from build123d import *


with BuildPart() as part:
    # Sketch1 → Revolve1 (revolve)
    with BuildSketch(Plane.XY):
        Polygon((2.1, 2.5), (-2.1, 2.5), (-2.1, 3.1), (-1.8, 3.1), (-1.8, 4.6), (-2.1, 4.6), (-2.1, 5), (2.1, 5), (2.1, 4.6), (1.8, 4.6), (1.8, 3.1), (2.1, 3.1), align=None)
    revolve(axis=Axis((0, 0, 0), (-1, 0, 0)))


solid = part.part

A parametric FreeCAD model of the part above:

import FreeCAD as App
import Part
import Sketcher
Q = App.Units.Quantity

doc = App.newDocument("Part")
body = doc.addObject("PartDesign::Body", "Body")

# Sketch on XY plane
sketch1 = body.newObject("Sketcher::SketchObject", "Sketch")
sketch1.AttachmentSupport = (doc.getObject("XY_Plane"), [""])
sketch1.MapMode = "FlatFace"
sketch1.addGeometry([
    Part.LineSegment(App.Vector(-2.1, 2.5, 0), App.Vector(2.1, 2.5, 0)),  # 0
    Part.LineSegment(App.Vector(2.1, 2.5, 0), App.Vector(2.1, 3.1, 0)),  # 1
    Part.LineSegment(App.Vector(2.1, 3.1, 0), App.Vector(1.8, 3.1, 0)),  # 2
    Part.LineSegment(App.Vector(1.8, 3.1, 0), App.Vector(1.8, 4.6, 0)),  # 3
    Part.LineSegment(App.Vector(1.8, 4.6, 0), App.Vector(2.1, 4.6, 0)),  # 4
    Part.LineSegment(App.Vector(2.1, 4.6, 0), App.Vector(2.1, 5, 0)),  # 5
    Part.LineSegment(App.Vector(2.1, 5, 0), App.Vector(-2.1, 5, 0)),  # 6
    Part.LineSegment(App.Vector(-2.1, 5, 0), App.Vector(-2.1, 4.6, 0)),  # 7
    Part.LineSegment(App.Vector(-2.1, 4.6, 0), App.Vector(-1.8, 4.6, 0)),  # 8
    Part.LineSegment(App.Vector(-1.8, 4.6, 0), App.Vector(-1.8, 3.1, 0)),  # 9
    Part.LineSegment(App.Vector(-1.8, 3.1, 0), App.Vector(-2.1, 3.1, 0)),  # 10
    Part.LineSegment(App.Vector(-2.1, 3.1, 0), App.Vector(-2.1, 2.5, 0)),  # 11
], False)
sketch1.addConstraint([
    Sketcher.Constraint("Coincident", 0, 2, 1, 1),
    Sketcher.Constraint("Coincident", 1, 2, 2, 1),
    Sketcher.Constraint("Coincident", 2, 2, 3, 1),
    Sketcher.Constraint("Coincident", 3, 2, 4, 1),
    Sketcher.Constraint("Coincident", 4, 2, 5, 1),
    Sketcher.Constraint("Coincident", 5, 2, 6, 1),
    Sketcher.Constraint("Coincident", 6, 2, 7, 1),
    Sketcher.Constraint("Coincident", 7, 2, 8, 1),
    Sketcher.Constraint("Coincident", 8, 2, 9, 1),
    Sketcher.Constraint("Coincident", 9, 2, 10, 1),
    Sketcher.Constraint("Coincident", 10, 2, 11, 1),
    Sketcher.Constraint("Coincident", 11, 2, 0, 1),
    Sketcher.Constraint("Horizontal", 0),
    Sketcher.Constraint("Vertical", 1),
    Sketcher.Constraint("Horizontal", 2),
    Sketcher.Constraint("Vertical", 3),
    Sketcher.Constraint("Horizontal", 4),
    Sketcher.Constraint("Vertical", 5),
    Sketcher.Constraint("Horizontal", 6),
    Sketcher.Constraint("Vertical", 7),
    Sketcher.Constraint("Horizontal", 8),
    Sketcher.Constraint("Vertical", 9),
    Sketcher.Constraint("Horizontal", 10),
    Sketcher.Constraint("Vertical", 11),
    Sketcher.Constraint("Symmetric", 4, 2, 7, 2, -2),
    Sketcher.Constraint("Symmetric", 2, 2, 9, 2, -2),
    Sketcher.Constraint("Vertical", 1, 2, 4, 2),
    Sketcher.Constraint("Vertical", 7, 2, 10, 2),
    Sketcher.Constraint("DistanceX", 0, 1, 0, 2, Q("4.2 mm")),
    Sketcher.Constraint("DistanceX", 2, 2, 2, 1, Q("0.3 mm")),
    Sketcher.Constraint("DistanceY", 1, 1, 1, 2, Q("0.6 mm")),
    Sketcher.Constraint("DistanceY", 3, 1, 3, 2, Q("1.5 mm")),
    Sketcher.Constraint("DistanceY", 5, 1, 5, 2, Q("0.4 mm")),
    Sketcher.Constraint("DistanceY", -1, 1, 5, 2, Q("5 mm")),
])
revolution = body.newObject("PartDesign::Revolution", "Revolution")
revolution.Profile = sketch1
revolution.ReferenceAxis = (sketch1, ["H_Axis"])
revolution.Angle = 360

doc.recompute()
